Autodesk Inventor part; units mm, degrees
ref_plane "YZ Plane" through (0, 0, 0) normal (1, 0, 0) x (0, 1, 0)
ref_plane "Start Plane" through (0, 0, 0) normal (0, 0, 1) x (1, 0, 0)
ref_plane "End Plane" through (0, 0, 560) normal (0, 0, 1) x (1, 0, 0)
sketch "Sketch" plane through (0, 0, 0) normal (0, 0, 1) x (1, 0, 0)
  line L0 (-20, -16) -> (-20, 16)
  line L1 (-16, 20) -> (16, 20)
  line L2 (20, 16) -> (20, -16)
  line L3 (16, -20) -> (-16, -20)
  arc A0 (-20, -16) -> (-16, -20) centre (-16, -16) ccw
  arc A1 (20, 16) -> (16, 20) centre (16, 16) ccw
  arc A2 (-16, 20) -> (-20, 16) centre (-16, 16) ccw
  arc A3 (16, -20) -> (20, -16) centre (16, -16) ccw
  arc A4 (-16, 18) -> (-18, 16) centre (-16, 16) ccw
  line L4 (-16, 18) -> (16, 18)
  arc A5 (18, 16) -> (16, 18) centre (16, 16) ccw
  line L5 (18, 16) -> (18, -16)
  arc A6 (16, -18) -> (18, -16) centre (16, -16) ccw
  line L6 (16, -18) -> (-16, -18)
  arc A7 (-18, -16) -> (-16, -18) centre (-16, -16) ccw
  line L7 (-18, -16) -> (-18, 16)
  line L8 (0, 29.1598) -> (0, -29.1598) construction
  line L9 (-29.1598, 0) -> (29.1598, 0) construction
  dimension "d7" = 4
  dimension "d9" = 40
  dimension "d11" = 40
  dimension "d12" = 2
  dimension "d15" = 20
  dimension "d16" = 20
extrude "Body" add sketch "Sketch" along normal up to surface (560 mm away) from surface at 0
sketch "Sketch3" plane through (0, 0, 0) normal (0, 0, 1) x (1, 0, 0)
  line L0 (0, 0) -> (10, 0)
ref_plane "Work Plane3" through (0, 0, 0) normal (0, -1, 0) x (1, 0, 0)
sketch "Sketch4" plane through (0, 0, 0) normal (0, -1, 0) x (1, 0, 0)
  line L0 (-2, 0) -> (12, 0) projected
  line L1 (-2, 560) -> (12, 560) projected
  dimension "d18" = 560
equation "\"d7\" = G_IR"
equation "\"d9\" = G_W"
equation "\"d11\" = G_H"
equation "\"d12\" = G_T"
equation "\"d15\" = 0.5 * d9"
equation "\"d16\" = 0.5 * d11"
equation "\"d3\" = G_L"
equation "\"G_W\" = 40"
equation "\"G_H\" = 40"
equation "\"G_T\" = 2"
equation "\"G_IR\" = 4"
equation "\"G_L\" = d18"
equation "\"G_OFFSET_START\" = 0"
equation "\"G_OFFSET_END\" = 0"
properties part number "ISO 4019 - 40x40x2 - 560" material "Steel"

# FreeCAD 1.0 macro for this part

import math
import FreeCAD as App
import Part
import Sketcher

doc = App.newDocument("Part")
body = doc.addObject("PartDesign::Body", "Body")

# Sketch on XY plane
sketch1 = body.newObject("Sketcher::SketchObject", "Sketch")
sketch1.AttachmentSupport = (doc.getObject("XY_Plane"), [""])
sketch1.MapMode = "FlatFace"
sketch1.addGeometry([
    Part.LineSegment(App.Vector(-20, 16, 0), App.Vector(-20, -16, 0)),  # 0
    Part.ArcOfCircle(Part.Circle(App.Vector(-16, -16, 0), App.Vector(0, 0, 1), 4), math.radians(180), math.radians(270)),  # 1
    Part.LineSegment(App.Vector(-16, -20, 0), App.Vector(16, -20, 0)),  # 2
    Part.ArcOfCircle(Part.Circle(App.Vector(16, -16, 0), App.Vector(0, 0, 1), 4), math.radians(-90), math.radians(0)),  # 3
    Part.LineSegment(App.Vector(20, -16, 0), App.Vector(20, 16, 0)),  # 4
    Part.ArcOfCircle(Part.Circle(App.Vector(16, 16, 0), App.Vector(0, 0, 1), 4), math.radians(0), math.radians(90)),  # 5
    Part.LineSegment(App.Vector(16, 20, 0), App.Vector(-16, 20, 0)),  # 6
    Part.ArcOfCircle(Part.Circle(App.Vector(-16, 16, 0), App.Vector(0, 0, 1), 4), math.radians(90), math.radians(180)),  # 7
    Part.ArcOfCircle(Part.Circle(App.Vector(-16, 16, 0), App.Vector(0, 0, 1), 2), math.radians(90), math.radians(180)),  # 8
    Part.LineSegment(App.Vector(-16, 18, 0), App.Vector(16, 18, 0)),  # 9
    Part.ArcOfCircle(Part.Circle(App.Vector(16, 16, 0), App.Vector(0, 0, 1), 2), math.radians(0), math.radians(90)),  # 10
    Part.LineSegment(App.Vector(18, 16, 0), App.Vector(18, -16, 0)),  # 11
    Part.ArcOfCircle(Part.Circle(App.Vector(16, -16, 0), App.Vector(0, 0, 1), 2), math.radians(-90), math.radians(0)),  # 12
    Part.LineSegment(App.Vector(16, -18, 0), App.Vector(-16, -18, 0)),  # 13
    Part.ArcOfCircle(Part.Circle(App.Vector(-16, -16, 0), App.Vector(0, 0, 1), 2), math.radians(180), math.radians(270)),  # 14
    Part.LineSegment(App.Vector(-18, -16, 0), App.Vector(-18, 16, 0)),  # 15
], False)
sketch1.addConstraint([
    Sketcher.Constraint("Tangent", 0, 2, 1, 1),
    Sketcher.Constraint("Tangent", 1, 2, 2, 1),
    Sketcher.Constraint("Tangent", 2, 2, 3, 1),
    Sketcher.Constraint("Tangent", 3, 2, 4, 1),
    Sketcher.Constraint("Tangent", 4, 2, 5, 1),
    Sketcher.Constraint("Tangent", 5, 2, 6, 1),
    Sketcher.Constraint("Tangent", 6, 2, 7, 1),
    Sketcher.Constraint("Tangent", 7, 2, 0, 1),
    Sketcher.Constraint("Tangent", 8, 1, 9, 1),
    Sketcher.Constraint("Tangent", 9, 2, 10, 2),
    Sketcher.Constraint("Tangent", 10, 1, 11, 1),
    Sketcher.Constraint("Tangent", 11, 2, 12, 2),
    Sketcher.Constraint("Tangent", 12, 1, 13, 1),
    Sketcher.Constraint("Tangent", 13, 2, 14, 2),
    Sketcher.Constraint("Tangent", 14, 1, 15, 1),
    Sketcher.Constraint("Tangent", 15, 2, 8, 2),
    Sketcher.Constraint("Vertical", 0),
    Sketcher.Constraint("Horizontal", 2),
    Sketcher.Constraint("Vertical", 4),
    Sketcher.Constraint("Horizontal", 6),
    Sketcher.Constraint("Horizontal", 9),
    Sketcher.Constraint("Vertical", 11),
    Sketcher.Constraint("Horizontal", 13),
    Sketcher.Constraint("Vertical", 15),
    Sketcher.Constraint("Coincident", 8, 3, 7, 3),
    Sketcher.Constraint("Coincident", 10, 3, 5, 3),
    Sketcher.Constraint("Coincident", 12, 3, 3, 3),
    Sketcher.Constraint("Equal", 1, 3),
    Sketcher.Constraint("Equal", 3, 5),
    Sketcher.Constraint("Equal", 5, 7),
    Sketcher.Constraint("Equal", 12, 14),
    Sketcher.Constraint("Symmetric", 1, 3, 5, 3, -1, 1),
    Sketcher.Constraint("Equal", 13, 0),
    Sketcher.Constraint("Radius", 1, 4.0),
    Sketcher.Constraint("Radius", 8, 2.0),
    Sketcher.Constraint("DistanceX", 0, 2, -1, 1, 20.0),
])
pad1 = body.newObject("PartDesign::Pad", "Pad")
pad1.Profile = sketch1
pad1.Length = 560

doc.recompute()
